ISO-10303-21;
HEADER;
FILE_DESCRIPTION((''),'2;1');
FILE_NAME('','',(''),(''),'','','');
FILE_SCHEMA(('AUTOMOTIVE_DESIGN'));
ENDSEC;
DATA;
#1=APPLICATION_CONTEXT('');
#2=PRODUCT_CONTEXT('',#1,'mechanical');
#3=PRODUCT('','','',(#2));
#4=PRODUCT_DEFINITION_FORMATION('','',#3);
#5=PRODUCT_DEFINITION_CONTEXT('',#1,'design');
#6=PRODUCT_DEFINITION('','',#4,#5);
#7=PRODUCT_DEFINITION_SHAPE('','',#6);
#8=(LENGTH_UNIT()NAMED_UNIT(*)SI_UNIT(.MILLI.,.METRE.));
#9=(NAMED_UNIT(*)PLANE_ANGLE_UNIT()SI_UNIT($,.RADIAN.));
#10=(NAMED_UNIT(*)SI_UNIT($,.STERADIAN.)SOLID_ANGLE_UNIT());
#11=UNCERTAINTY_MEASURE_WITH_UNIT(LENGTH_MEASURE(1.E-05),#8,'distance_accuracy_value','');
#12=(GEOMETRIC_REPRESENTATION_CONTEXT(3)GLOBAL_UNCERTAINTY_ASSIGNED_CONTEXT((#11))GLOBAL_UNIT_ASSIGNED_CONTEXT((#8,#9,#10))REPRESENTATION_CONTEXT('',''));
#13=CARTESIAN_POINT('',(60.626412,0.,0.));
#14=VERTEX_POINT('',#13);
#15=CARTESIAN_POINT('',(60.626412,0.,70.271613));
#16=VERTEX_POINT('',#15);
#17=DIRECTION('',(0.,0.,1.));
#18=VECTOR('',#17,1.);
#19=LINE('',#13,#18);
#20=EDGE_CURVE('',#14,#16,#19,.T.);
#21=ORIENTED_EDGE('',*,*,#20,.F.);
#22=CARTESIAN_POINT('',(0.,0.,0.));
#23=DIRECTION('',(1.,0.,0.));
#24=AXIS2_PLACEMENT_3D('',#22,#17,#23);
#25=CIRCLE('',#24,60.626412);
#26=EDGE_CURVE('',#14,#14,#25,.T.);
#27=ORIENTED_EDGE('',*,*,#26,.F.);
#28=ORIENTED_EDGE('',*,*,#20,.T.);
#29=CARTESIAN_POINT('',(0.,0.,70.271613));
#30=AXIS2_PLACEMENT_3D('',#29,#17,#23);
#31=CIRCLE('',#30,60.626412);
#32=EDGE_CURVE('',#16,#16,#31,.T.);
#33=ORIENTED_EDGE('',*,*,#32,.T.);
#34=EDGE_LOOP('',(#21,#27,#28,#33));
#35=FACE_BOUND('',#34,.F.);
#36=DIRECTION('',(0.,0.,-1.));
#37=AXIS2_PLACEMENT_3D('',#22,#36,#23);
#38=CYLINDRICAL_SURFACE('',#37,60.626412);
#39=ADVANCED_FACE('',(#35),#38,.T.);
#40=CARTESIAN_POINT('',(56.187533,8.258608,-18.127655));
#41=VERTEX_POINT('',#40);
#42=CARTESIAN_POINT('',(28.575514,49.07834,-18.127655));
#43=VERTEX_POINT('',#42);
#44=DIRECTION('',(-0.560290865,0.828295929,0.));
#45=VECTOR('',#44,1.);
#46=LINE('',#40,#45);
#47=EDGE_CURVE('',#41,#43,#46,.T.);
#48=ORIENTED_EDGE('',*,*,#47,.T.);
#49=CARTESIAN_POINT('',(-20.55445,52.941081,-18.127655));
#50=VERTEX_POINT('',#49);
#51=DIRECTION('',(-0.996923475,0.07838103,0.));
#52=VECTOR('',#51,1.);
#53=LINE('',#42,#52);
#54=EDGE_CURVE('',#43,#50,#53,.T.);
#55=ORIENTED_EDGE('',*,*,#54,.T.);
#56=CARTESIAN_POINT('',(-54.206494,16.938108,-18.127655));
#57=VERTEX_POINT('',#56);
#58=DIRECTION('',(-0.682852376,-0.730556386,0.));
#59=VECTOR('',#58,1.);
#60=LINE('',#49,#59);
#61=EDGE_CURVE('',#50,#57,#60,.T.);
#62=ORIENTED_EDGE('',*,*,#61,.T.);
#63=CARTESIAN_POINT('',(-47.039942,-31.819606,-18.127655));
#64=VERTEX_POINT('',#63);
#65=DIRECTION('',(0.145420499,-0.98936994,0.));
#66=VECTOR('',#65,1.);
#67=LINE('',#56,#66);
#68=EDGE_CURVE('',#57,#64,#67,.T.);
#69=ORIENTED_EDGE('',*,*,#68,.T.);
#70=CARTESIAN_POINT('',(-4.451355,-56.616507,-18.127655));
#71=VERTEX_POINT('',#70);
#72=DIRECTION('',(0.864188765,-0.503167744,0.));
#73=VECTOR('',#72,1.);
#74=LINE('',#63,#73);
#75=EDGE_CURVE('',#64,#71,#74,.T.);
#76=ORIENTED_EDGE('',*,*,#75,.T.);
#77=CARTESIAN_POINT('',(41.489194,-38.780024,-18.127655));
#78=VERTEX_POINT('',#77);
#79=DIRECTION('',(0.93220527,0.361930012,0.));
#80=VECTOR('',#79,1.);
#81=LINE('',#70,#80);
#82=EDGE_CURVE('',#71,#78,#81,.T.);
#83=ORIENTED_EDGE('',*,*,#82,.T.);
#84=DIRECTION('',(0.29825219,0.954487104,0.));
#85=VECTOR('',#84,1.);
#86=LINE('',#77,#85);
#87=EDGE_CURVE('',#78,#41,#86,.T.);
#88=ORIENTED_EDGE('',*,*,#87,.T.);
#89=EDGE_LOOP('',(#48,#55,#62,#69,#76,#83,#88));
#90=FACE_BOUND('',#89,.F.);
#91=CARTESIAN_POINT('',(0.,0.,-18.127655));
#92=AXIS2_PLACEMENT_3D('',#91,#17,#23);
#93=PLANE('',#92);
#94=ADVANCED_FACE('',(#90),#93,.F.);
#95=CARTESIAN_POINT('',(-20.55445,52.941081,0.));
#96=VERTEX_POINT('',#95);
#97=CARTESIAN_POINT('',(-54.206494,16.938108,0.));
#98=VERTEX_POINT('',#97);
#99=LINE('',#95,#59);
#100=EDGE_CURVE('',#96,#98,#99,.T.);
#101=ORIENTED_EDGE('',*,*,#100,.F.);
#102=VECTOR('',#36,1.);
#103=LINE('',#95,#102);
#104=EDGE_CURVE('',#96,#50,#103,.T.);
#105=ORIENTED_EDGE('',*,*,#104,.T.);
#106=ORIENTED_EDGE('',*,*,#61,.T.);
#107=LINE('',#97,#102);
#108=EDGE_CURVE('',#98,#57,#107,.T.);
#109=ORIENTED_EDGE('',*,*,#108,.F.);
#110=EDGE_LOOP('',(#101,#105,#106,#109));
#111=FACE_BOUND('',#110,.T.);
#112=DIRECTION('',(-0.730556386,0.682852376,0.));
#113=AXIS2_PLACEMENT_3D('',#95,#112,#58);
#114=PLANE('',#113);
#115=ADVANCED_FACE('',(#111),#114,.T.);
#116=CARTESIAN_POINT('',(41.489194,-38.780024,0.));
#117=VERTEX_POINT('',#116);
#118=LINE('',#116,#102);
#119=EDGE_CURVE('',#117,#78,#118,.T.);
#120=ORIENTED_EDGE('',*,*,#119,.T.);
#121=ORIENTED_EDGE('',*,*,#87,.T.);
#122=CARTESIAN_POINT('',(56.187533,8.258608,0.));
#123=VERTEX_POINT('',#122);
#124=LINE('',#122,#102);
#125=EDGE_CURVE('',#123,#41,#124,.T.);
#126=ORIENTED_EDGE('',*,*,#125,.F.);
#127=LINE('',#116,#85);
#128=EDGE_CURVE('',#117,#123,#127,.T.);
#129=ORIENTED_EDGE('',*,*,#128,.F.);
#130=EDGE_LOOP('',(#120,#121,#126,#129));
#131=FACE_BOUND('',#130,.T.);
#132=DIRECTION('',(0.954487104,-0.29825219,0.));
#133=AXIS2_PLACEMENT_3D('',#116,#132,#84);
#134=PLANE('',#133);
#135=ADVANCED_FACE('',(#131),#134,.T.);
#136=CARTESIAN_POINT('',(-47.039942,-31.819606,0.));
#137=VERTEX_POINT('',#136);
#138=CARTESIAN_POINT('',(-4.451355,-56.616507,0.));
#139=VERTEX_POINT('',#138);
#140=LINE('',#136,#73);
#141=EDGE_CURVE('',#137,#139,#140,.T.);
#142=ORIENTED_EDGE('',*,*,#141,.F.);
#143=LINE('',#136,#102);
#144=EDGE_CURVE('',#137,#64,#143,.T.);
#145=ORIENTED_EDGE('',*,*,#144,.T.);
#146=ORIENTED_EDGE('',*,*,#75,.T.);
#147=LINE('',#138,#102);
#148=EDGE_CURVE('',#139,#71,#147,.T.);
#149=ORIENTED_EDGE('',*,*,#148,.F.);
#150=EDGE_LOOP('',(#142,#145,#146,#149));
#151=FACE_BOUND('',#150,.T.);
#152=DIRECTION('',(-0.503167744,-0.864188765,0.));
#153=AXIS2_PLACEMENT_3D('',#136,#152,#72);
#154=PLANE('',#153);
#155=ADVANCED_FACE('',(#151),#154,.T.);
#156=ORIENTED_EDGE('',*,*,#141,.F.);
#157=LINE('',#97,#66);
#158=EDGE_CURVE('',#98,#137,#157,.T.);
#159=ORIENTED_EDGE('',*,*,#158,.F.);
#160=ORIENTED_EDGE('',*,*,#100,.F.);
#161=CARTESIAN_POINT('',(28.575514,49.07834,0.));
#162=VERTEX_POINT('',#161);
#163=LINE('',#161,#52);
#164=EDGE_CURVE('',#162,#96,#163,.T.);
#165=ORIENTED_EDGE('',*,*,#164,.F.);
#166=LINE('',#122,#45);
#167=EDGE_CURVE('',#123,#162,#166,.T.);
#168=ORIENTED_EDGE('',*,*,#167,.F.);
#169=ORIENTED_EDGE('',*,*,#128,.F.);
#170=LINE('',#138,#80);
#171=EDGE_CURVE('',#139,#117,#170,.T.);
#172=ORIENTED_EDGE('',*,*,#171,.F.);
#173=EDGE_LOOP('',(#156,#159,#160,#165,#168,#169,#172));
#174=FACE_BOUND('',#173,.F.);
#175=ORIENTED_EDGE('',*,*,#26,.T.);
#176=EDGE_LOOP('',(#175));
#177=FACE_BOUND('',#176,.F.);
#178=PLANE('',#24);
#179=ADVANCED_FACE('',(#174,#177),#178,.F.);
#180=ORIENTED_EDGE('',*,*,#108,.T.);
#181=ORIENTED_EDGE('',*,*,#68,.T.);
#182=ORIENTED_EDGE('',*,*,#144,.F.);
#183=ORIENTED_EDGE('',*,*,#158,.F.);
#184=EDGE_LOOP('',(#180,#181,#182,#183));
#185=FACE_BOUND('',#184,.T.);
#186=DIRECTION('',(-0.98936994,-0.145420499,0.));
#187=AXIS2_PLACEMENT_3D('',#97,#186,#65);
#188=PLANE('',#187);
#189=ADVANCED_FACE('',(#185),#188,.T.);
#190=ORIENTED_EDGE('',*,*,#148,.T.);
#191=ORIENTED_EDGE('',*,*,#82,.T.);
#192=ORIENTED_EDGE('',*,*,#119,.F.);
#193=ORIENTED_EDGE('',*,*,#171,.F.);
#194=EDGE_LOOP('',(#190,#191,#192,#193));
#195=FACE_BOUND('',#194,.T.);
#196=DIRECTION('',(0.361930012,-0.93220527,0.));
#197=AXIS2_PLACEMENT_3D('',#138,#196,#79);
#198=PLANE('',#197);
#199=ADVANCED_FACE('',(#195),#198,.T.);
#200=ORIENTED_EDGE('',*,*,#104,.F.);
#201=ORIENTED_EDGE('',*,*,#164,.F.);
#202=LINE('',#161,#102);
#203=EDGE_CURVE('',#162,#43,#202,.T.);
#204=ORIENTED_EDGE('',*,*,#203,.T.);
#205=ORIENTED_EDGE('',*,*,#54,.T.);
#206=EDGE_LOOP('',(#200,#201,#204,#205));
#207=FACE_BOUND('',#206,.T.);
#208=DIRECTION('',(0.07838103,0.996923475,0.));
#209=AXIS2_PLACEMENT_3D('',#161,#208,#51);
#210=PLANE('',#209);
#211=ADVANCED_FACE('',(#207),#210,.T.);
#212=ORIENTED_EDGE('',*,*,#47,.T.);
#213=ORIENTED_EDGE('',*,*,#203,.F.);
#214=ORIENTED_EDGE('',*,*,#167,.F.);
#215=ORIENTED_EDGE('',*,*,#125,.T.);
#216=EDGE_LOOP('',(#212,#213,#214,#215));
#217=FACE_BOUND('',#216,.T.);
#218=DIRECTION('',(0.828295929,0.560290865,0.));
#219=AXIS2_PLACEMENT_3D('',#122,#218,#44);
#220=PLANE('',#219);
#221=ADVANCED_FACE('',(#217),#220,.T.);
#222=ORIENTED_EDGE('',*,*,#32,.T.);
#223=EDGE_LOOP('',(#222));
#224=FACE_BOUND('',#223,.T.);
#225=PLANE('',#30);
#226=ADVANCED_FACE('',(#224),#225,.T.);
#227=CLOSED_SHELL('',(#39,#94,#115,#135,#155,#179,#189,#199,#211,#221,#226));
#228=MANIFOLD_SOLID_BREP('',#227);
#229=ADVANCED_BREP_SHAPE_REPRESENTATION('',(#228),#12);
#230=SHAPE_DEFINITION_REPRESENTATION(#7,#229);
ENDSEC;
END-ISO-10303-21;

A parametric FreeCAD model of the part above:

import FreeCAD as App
import Part
import Sketcher

V = App.Vector
Q = App.Units.Quantity

doc = App.newDocument("Part")
body = doc.addObject("PartDesign::Body", "Body")

# Sketch on XY plane
sketch1 = body.newObject("Sketcher::SketchObject", "Sketch")
sketch1.AttachmentSupport = (doc.getObject("XY_Plane"), [""])
sketch1.MapMode = "FlatFace"
sketch1.addGeometry(Part.Circle(V(0, 0, 0), V(0, 0, 1), 61), False)
sketch1.addConstraint([
    Sketcher.Constraint("Coincident", 0, 3, -1, 1),
    Sketcher.Constraint("Diameter", 0, Q("121.252824 mm")),
])
pad1 = body.newObject("PartDesign::Pad", "Pad")
pad1.Profile = sketch1
pad1.Length = 70.271613

# Sketch on XY plane
sketch2 = body.newObject("Sketcher::SketchObject", "Sketch001")
sketch2.AttachmentSupport = (doc.getObject("XY_Plane"), [""])
sketch2.MapMode = "FlatFace"
sketch2.addGeometry([
    Part.LineSegment(V(-21, 53, 0), V(-54, 17, 0)),  # 0
    Part.LineSegment(V(-54, 17, 0), V(-47, -32, 0)),  # 1
    Part.LineSegment(V(-47, -32, 0), V(-4, -57, 0)),  # 2
    Part.LineSegment(V(-4, -57, 0), V(41, -39, 0)),  # 3
    Part.LineSegment(V(41, -39, 0), V(56, 8, 0)),  # 4
    Part.LineSegment(V(56, 8, 0), V(29, 49, 0)),  # 5
    Part.LineSegment(V(29, 49, 0), V(-21, 53, 0)),  # 6
], False)
sketch2.addConstraint([
    Sketcher.Constraint("Coincident", 0, 2, 1, 1),
    Sketcher.Constraint("Coincident", 1, 2, 2, 1),
    Sketcher.Constraint("Coincident", 2, 2, 3, 1),
    Sketcher.Constraint("Coincident", 3, 2, 4, 1),
    Sketcher.Constraint("Coincident", 4, 2, 5, 1),
    Sketcher.Constraint("Coincident", 5, 2, 6, 1),
    Sketcher.Constraint("Coincident", 6, 2, 0, 1),
    Sketcher.Constraint("Equal", 0, 1),
    Sketcher.Constraint("Equal", 1, 2),
    Sketcher.Constraint("Equal", 2, 3),
    Sketcher.Constraint("Equal", 3, 4),
    Sketcher.Constraint("Equal", 4, 5),
    Sketcher.Constraint("Equal", 5, 6),
    Sketcher.Constraint("DistanceY", 2, 2, 1, 2, Q("24.796901 mm")),
    Sketcher.Constraint("DistanceY", 4, 2, 0, 2, Q("8.6795 mm")),
    Sketcher.Constraint("Distance", 0, Q("49.28158 mm")),
    Sketcher.Constraint("DistanceY", -1, 1, 4, 2, Q("8.258608 mm")),
    Sketcher.Constraint("DistanceY", -1, 1, 5, 2, Q("49.07834 mm")),
    Sketcher.Constraint("DistanceX", 6, 2, -1, 1, Q("20.55445 mm")),
    Sketcher.Constraint("DistanceY", -1, 1, 6, 2, Q("52.941081 mm")),
    Sketcher.Constraint("DistanceX", 0, 2, 1, 2, Q("7.166552 mm")),
])
pad2 = body.newObject("PartDesign::Pad", "Pad001")
pad2.Profile = sketch2
pad2.Length = 18.127655
pad2.Reversed = True

doc.recompute()
